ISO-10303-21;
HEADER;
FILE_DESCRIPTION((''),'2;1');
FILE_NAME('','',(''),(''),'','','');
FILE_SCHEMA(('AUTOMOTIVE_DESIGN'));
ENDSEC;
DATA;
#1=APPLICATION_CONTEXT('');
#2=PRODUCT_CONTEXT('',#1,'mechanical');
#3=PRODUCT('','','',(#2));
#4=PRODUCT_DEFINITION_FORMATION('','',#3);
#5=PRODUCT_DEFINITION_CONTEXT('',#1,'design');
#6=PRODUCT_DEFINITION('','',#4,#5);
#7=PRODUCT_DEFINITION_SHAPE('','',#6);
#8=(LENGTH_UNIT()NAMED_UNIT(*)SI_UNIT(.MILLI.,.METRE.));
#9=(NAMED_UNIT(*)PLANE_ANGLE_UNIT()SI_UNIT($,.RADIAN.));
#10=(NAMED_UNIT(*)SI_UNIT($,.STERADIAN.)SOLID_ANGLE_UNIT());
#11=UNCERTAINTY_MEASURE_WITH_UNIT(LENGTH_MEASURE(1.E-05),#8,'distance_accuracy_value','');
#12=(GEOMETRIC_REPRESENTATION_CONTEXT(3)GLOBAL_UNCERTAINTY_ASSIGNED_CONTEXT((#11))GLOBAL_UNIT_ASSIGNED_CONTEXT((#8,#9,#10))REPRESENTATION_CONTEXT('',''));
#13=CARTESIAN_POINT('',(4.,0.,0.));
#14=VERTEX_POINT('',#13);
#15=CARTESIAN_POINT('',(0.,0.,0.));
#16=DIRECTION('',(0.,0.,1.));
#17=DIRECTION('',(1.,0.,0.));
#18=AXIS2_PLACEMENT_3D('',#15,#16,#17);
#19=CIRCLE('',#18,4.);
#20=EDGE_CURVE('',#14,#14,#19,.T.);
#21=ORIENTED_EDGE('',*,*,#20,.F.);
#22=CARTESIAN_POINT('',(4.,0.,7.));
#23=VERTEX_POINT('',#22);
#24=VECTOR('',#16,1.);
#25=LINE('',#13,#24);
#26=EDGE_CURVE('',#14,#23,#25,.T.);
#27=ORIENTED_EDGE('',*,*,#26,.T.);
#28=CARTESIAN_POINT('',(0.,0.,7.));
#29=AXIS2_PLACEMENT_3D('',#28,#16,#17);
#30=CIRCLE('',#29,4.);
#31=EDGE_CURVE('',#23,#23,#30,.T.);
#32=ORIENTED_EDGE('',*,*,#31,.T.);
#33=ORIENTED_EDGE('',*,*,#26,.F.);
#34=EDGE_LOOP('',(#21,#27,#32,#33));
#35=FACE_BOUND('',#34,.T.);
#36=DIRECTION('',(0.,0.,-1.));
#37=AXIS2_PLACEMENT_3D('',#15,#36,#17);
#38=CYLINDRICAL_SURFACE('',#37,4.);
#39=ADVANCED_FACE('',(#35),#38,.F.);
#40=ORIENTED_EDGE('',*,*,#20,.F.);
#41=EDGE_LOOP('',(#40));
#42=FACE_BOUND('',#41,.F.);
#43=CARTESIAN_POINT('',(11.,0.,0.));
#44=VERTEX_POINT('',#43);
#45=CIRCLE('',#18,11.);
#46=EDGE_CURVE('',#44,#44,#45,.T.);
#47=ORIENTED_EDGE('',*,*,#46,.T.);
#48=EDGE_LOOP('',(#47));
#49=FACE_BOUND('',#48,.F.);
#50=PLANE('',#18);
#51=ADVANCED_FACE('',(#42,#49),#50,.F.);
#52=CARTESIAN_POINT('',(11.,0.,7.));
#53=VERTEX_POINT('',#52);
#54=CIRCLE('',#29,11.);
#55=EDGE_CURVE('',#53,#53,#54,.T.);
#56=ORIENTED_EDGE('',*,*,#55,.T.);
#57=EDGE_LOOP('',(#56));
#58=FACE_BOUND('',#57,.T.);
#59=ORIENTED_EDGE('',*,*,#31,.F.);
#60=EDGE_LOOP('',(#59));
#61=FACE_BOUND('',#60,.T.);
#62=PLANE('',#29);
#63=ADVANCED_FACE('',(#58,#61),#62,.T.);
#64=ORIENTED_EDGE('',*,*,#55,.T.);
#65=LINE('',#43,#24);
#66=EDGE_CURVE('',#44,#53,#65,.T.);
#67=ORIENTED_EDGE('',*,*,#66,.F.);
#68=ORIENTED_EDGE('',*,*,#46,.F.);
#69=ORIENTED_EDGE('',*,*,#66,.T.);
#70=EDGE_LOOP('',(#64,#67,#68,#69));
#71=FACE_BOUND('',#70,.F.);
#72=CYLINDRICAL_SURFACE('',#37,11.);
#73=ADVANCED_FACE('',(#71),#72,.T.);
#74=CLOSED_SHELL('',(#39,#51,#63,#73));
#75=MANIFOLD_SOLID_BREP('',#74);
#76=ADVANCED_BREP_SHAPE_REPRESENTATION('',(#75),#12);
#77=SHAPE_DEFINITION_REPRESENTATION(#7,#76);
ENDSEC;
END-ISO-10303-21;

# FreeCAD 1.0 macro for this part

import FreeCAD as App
import Part
import Sketcher

V = App.Vector

doc = App.newDocument("Part")
body = doc.addObject("PartDesign::Body", "Body")

# Sketch on XY plane
sketch1 = body.newObject("Sketcher::SketchObject", "Sketch")
sketch1.AttachmentSupport = (doc.getObject("XY_Plane"), [""])
sketch1.MapMode = "FlatFace"
sketch1.addGeometry(Part.Circle(V(0, 0, 0), V(0, 0, 1), 11), False)
sketch1.addGeometry(Part.Circle(V(0, 0, 0), V(0, 0, 1), 4), False)
sketch1.addConstraint(Sketcher.Constraint("Coincident", 0, 3, -1, 1))
sketch1.addConstraint(Sketcher.Constraint("Coincident", 1, 3, -1, 1))
sketch1.addConstraint(Sketcher.Constraint("Diameter", 0, 22.0))
sketch1.addConstraint(Sketcher.Constraint("Diameter", 1, 8.0))
pad1 = body.newObject("PartDesign::Pad", "Pad")
pad1.Profile = sketch1
pad1.Length = 7

doc.recompute()
